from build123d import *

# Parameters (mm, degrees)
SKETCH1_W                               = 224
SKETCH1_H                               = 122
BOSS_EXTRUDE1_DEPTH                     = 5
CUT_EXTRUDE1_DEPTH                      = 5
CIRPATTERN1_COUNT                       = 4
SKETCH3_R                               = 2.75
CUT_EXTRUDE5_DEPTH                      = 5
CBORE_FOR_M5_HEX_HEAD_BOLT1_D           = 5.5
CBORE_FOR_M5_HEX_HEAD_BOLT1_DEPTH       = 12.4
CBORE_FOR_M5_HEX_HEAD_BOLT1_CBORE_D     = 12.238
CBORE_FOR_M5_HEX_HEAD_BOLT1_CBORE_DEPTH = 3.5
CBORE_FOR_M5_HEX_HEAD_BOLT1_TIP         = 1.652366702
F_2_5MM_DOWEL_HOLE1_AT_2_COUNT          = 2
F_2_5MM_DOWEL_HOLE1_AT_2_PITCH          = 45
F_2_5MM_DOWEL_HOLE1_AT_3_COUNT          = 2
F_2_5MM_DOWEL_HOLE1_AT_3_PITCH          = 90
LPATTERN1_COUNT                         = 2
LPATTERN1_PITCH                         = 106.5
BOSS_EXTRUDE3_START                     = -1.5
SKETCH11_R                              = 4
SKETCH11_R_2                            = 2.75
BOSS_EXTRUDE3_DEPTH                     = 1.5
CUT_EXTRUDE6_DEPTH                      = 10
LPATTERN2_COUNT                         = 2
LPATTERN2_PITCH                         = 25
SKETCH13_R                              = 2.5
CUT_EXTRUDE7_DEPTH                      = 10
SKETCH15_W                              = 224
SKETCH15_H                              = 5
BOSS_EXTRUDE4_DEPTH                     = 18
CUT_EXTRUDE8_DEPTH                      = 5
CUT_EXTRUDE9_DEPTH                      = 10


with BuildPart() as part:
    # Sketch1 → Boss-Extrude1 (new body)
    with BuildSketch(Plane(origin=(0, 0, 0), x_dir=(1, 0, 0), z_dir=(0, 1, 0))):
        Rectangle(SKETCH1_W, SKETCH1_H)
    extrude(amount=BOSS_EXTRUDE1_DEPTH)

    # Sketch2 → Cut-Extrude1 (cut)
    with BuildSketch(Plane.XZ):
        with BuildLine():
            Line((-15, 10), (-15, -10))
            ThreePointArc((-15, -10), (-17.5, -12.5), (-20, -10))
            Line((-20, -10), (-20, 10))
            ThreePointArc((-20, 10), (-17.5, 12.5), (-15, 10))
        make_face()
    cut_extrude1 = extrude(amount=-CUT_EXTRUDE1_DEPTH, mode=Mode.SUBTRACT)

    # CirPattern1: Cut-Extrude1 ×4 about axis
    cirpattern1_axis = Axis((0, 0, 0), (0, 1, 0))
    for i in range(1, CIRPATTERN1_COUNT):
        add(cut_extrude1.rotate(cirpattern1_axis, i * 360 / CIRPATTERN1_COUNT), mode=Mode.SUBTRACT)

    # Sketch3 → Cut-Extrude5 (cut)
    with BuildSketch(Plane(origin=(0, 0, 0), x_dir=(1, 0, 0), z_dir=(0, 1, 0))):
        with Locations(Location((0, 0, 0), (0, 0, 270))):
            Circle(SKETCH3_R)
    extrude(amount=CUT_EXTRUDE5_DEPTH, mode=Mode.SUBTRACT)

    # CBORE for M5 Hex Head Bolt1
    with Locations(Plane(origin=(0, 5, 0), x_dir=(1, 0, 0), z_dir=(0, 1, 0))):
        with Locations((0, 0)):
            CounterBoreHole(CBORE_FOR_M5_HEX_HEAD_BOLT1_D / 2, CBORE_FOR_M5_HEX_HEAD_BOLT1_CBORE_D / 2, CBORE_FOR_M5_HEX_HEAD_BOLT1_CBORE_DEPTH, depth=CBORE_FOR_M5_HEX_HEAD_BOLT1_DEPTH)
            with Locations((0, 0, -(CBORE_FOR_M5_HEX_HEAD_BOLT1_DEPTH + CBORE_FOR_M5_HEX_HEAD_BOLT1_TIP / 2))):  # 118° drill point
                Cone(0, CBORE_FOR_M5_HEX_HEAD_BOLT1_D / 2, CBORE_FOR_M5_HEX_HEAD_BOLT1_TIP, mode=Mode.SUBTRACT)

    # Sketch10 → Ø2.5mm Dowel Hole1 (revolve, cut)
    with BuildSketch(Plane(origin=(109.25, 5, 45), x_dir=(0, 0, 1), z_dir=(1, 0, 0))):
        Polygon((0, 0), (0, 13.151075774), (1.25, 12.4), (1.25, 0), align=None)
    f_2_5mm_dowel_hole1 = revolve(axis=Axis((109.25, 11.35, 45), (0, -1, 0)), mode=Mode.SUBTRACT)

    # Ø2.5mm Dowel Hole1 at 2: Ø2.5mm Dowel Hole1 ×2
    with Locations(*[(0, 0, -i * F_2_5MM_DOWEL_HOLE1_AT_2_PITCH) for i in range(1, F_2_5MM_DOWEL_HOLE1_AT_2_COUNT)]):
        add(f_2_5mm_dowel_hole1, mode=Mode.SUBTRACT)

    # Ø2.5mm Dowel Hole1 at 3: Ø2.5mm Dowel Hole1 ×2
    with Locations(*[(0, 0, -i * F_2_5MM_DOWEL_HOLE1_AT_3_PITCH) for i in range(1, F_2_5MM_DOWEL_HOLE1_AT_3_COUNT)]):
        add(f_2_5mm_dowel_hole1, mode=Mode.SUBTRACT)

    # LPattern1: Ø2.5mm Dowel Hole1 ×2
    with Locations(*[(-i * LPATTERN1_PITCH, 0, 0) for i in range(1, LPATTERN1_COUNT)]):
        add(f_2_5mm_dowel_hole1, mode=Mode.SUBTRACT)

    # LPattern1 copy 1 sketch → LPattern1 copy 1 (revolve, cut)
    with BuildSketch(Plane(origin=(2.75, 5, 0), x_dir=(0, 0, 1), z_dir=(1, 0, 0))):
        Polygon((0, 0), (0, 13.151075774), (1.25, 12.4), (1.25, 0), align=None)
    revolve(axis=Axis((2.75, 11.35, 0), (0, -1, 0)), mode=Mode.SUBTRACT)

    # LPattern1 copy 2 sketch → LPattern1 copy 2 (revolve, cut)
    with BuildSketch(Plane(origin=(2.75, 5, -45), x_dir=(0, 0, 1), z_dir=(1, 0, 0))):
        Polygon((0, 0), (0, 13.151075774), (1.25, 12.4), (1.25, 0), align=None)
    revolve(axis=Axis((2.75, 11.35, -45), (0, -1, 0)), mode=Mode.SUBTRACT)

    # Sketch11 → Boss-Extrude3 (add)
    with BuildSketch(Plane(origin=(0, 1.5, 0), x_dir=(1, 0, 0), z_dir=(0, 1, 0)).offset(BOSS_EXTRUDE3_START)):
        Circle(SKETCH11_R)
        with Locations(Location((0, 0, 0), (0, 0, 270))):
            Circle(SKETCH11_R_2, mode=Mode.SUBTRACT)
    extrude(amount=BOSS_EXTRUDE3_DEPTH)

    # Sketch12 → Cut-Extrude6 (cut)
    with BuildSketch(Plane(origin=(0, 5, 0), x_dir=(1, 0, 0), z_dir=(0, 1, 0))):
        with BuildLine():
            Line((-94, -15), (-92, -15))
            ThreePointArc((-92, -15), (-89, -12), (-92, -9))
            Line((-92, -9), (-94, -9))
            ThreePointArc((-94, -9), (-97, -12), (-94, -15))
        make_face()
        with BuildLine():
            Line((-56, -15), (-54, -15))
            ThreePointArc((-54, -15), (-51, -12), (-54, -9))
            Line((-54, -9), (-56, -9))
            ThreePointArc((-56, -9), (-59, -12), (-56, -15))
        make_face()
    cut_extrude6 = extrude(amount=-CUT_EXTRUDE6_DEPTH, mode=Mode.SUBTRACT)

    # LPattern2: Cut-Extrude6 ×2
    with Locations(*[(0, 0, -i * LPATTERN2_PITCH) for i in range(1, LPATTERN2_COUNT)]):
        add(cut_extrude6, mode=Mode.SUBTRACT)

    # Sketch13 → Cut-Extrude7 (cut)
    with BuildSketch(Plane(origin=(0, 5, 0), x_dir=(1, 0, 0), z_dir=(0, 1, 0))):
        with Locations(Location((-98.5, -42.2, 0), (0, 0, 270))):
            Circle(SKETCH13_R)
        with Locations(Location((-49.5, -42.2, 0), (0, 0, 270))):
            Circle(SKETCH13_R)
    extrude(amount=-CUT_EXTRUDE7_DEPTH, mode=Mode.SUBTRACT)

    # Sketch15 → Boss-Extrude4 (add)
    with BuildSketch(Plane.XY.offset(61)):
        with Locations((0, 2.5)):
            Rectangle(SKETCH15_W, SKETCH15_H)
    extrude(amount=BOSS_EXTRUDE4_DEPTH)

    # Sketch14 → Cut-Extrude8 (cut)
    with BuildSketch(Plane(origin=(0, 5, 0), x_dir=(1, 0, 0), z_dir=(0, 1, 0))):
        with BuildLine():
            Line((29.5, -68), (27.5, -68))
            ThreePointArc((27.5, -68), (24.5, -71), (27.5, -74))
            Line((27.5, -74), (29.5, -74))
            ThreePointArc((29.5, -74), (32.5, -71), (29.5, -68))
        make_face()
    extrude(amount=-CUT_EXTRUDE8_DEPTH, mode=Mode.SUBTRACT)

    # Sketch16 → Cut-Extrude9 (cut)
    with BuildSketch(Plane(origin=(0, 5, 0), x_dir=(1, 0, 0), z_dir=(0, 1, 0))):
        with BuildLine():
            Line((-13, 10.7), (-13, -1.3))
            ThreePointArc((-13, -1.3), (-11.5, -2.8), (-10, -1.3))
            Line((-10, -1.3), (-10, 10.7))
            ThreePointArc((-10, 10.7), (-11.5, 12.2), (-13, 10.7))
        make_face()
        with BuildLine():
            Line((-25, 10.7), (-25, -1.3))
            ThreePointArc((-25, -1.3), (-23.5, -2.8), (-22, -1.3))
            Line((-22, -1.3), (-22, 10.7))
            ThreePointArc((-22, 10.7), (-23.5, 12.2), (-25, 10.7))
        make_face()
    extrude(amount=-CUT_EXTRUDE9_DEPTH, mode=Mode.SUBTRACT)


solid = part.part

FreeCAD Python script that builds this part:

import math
import FreeCAD as App
import Part
import Sketcher
from FreeCAD import Vector
Q = App.Units.Quantity

doc = App.newDocument("Part")
params = doc.addObject("Spreadsheet::Sheet", "Params")
for row, (alias, value) in enumerate([
    ("sketch1_width", "224 mm"),
    ("sketch1_height", "122 mm"),
    ("pad1_length", "5 mm"),
    ("sketch2_radius", "2.5 mm"),
    ("sketch2_height", "20 mm"),
    ("pocket1_length", "5 mm"),
    ("sketch3_diameter", "5.5 mm"),
    ("pocket2_length", "5 mm"),
    ("sketch4_diameter", "5.5 mm"),
    ("hole_diameter", "5.5 mm"),
    ("hole_depth", "12.4 mm"),
    ("hole_cbore_diameter", "12.238 mm"),
    ("hole_cbore_depth", "3.5 mm"),
    ("sketch5_width", "12.4 mm"),
    ("sketch5_height", "1.25 mm"),
    ("groove_angle", "360 deg"),
    ("linearpattern_pitch", "45 mm"),
    ("linearpattern2_pitch", "90 mm"),
    ("linearpattern3_pitch", "106.5 mm"),
    ("sketch6_width", "12.4 mm"),
    ("sketch6_height", "1.25 mm"),
    ("groove2_angle", "360 deg"),
    ("sketch7_width", "12.4 mm"),
    ("sketch7_height", "1.25 mm"),
    ("groove3_angle", "360 deg"),
    ("sketch8_diameter", "8 mm"),
    ("sketch8_diameter2", "5.5 mm"),
    ("pad2_length", "1.5 mm"),
    ("sketch9_radius", "3 mm"),
    ("sketch9_width", "2 mm"),
    ("pocket3_length", "10 mm"),
    ("linearpattern4_pitch", "25 mm"),
    ("sketch10_diameter", "5 mm"),
    ("pocket4_length", "10 mm"),
    ("sketch11_width", "224 mm"),
    ("sketch11_height", "5 mm"),
    ("pad3_length", "18 mm"),
    ("sketch12_radius", "3 mm"),
    ("sketch12_width", "2 mm"),
    ("pocket5_length", "5 mm"),
    ("sketch13_radius", "1.5 mm"),
    ("sketch13_height", "12 mm"),
    ("pocket6_length", "10 mm"),
], start=1):
    params.set(f"A{row}", alias)
    params.set(f"B{row}", "=" + value)
    params.setAlias(f"B{row}", alias)

body = doc.addObject("PartDesign::Body", "Body")

sketch1 = body.newObject("Sketcher::SketchObject", "Sketch")
sketch1.AttachmentSupport = (doc.getObject("XZ_Plane"), [""])
sketch1.MapMode = "FlatFace"
sketch1.addGeometry(Part.LineSegment(Vector(-112, -61, 0), Vector(-112, 61, 0)), False)
sketch1.addGeometry(Part.LineSegment(Vector(-112, 61, 0), Vector(112, 61, 0)), False)
sketch1.addGeometry(Part.LineSegment(Vector(112, 61, 0), Vector(112, -61, 0)), False)
sketch1.addGeometry(Part.LineSegment(Vector(112, -61, 0), Vector(-112, -61, 0)), False)
sketch1.addConstraint(Sketcher.Constraint("Coincident", 0, 2, 1, 1))
sketch1.addConstraint(Sketcher.Constraint("Coincident", 1, 2, 2, 1))
sketch1.addConstraint(Sketcher.Constraint("Coincident", 2, 2, 3, 1))
sketch1.addConstraint(Sketcher.Constraint("Coincident", 3, 2, 0, 1))
sketch1.addConstraint(Sketcher.Constraint("Vertical", 0))
sketch1.addConstraint(Sketcher.Constraint("Horizontal", 1))
sketch1.addConstraint(Sketcher.Constraint("Vertical", 2))
sketch1.addConstraint(Sketcher.Constraint("Horizontal", 3))
sketch1.addConstraint(Sketcher.Constraint("Symmetric", 0, 2, 2, 2, -1, 1))
sketch1.addConstraint(Sketcher.Constraint("DistanceX", 1, 1, 1, 2, 224.0))
sketch1.addConstraint(Sketcher.Constraint("DistanceY", 0, 1, 0, 2, 122.0))
sketch1.setExpression("Constraints[9]", "Params.sketch1_width")
sketch1.setExpression("Constraints[10]", "Params.sketch1_height")
pad1 = body.newObject("PartDesign::Pad", "Pad")
pad1.Profile = sketch1
pad1.setExpression("Length", "Params.pad1_length")
pad1.Reversed = True

sketch2 = body.newObject("Sketcher::SketchObject", "Sketch001")
sketch2.AttachmentSupport = (doc.getObject("XZ_Plane"), [""])
sketch2.MapMode = "FlatFace"
sketch2.addGeometry(Part.LineSegment(Vector(-15, -10, 0), Vector(-15, 10, 0)), False)
sketch2.addGeometry(Part.ArcOfCircle(Part.Circle(Vector(-17.5, 10, 0), Vector(0, 0, 1), 2.5), math.radians(0), math.radians(180)), False)
sketch2.addGeometry(Part.LineSegment(Vector(-20, 10, 0), Vector(-20, -10, 0)), False)
sketch2.addGeometry(Part.ArcOfCircle(Part.Circle(Vector(-17.5, -10, 0), Vector(0, 0, 1), 2.5), math.radians(180), math.radians(360)), False)
sketch2.addConstraint(Sketcher.Constraint("Tangent", 0, 2, 1, 1))
sketch2.addConstraint(Sketcher.Constraint("Tangent", 1, 2, 2, 1))
sketch2.addConstraint(Sketcher.Constraint("Tangent", 2, 2, 3, 1))
sketch2.addConstraint(Sketcher.Constraint("Tangent", 3, 2, 0, 1))
sketch2.addConstraint(Sketcher.Constraint("Vertical", 0))
sketch2.addConstraint(Sketcher.Constraint("Vertical", 2))
sketch2.addConstraint(Sketcher.Constraint("Radius", 1, 2.5))
sketch2.addConstraint(Sketcher.Constraint("DistanceY", 0, 1, 0, 2, 20.0))
sketch2.addConstraint(Sketcher.Constraint("DistanceY", -1, 1, 1, 3, 10.0))
sketch2.addConstraint(Sketcher.Constraint("DistanceX", 0, 2, -1, 1, 15.0))
sketch2.setExpression("Constraints[6]", "Params.sketch2_radius")
sketch2.setExpression("Constraints[7]", "Params.sketch2_height")
pocket1 = body.newObject("PartDesign::Pocket", "Pocket")
pocket1.Profile = sketch2
pocket1.setExpression("Length", "Params.pocket1_length")
doc.recompute()

polarpattern = body.newObject("PartDesign::PolarPattern", "PolarPattern")
polarpattern.Originals = [pocket1]
polarpattern.Axis = (doc.getObject("Y_Axis"), [""])
polarpattern.Angle = 360
polarpattern.Occurrences = 4
body.Tip = polarpattern

sketch3 = body.newObject("Sketcher::SketchObject", "Sketch002")
sketch3.AttachmentSupport = (doc.getObject("XZ_Plane"), [""])
sketch3.MapMode = "FlatFace"
sketch3.addGeometry(Part.Circle(Vector(0, 0, 0), Vector(0, 0, 1), 2.75), False)
sketch3.addConstraint(Sketcher.Constraint("Coincident", 0, 3, -1, 1))
sketch3.addConstraint(Sketcher.Constraint("Diameter", 0, 5.5))
sketch3.setExpression("Constraints[1]", "Params.sketch3_diameter")
pocket2 = body.newObject("PartDesign::Pocket", "Pocket001")
pocket2.Profile = sketch3
pocket2.setExpression("Length", "Params.pocket2_length")

sketch4 = body.newObject("Sketcher::SketchObject", "Sketch003")
sketch4.AttachmentSupport = (doc.getObject("XZ_Plane"), [""])
sketch4.MapMode = "FlatFace"
sketch4.AttachmentOffset = App.Placement(Vector(0, 0, -5), App.Rotation())
sketch4.addGeometry(Part.Circle(Vector(0, 0, 0), Vector(0, 0, 1), 2.75), False)
sketch4.addConstraint(Sketcher.Constraint("Coincident", 0, 3, -1, 1))
sketch4.addConstraint(Sketcher.Constraint("Diameter", 0, 5.5))
sketch4.setExpression("Constraints[1]", "Params.sketch4_diameter")
doc.recompute()
hole = body.newObject("PartDesign::Hole", "Hole")
hole.Profile = sketch4
hole.ThreadType = "None"
hole.setExpression("Diameter", "Params.hole_diameter")
hole.DepthType = "Dimension"
hole.setExpression("Depth", "Params.hole_depth")
hole.DrillPoint = "Angled"
hole.DrillPointAngle = 118
hole.HoleCutType = "Counterbore"
hole.setExpression("HoleCutDiameter", "Params.hole_cbore_diameter")
hole.setExpression("HoleCutDepth", "Params.hole_cbore_depth")
hole.Reversed = True

sketch5 = body.newObject("Sketcher::SketchObject", "Sketch004")
sketch5.AttachmentSupport = (doc.getObject("YZ_Plane"), [""])
sketch5.MapMode = "FlatFace"
sketch5.AttachmentOffset = App.Placement(Vector(0, 0, 109.25), App.Rotation())
sketch5.addGeometry(Part.LineSegment(Vector(-8.151076, 45, 0), Vector(5, 45, 0)), False)
sketch5.addGeometry(Part.LineSegment(Vector(5, 45, 0), Vector(5, 46.25, 0)), False)
sketch5.addGeometry(Part.LineSegment(Vector(5, 46.25, 0), Vector(-7.4, 46.25, 0)), False)
sketch5.addGeometry(Part.LineSegment(Vector(-7.4, 46.25, 0), Vector(-8.151076, 45, 0)), False)
sketch5.addGeometry(Part.LineSegment(Vector(5, 45, 0), Vector(-8.151076, 45, 0)), True)
sketch5.addConstraint(Sketcher.Constraint("Coincident", 0, 2, 1, 1))
sketch5.addConstraint(Sketcher.Constraint("Coincident", 1, 2, 2, 1))
sketch5.addConstraint(Sketcher.Constraint("Coincident", 2, 2, 3, 1))
sketch5.addConstraint(Sketcher.Constraint("Coincident", 3, 2, 0, 1))
sketch5.addConstraint(Sketcher.Constraint("Horizontal", 0))
sketch5.addConstraint(Sketcher.Constraint("Vertical", 1))
sketch5.addConstraint(Sketcher.Constraint("Horizontal", 2))
sketch5.addConstraint(Sketcher.Constraint("Horizontal", 4))
sketch5.addConstraint(Sketcher.Constraint("Coincident", 4, 1, 0, 2))
sketch5.addConstraint(Sketcher.Constraint("Equal", 0, 4))
sketch5.addConstraint(Sketcher.Constraint("Angle", 3, Q("-121 deg")))
sketch5.addConstraint(Sketcher.Constraint("DistanceX", 2, 2, 2, 1, 12.4))
sketch5.addConstraint(Sketcher.Constraint("DistanceX", -1, 1, 0, 2, 5.0))
sketch5.addConstraint(Sketcher.Constraint("DistanceY", -1, 1, 0, 2, 45.0))
sketch5.addConstraint(Sketcher.Constraint("DistanceY", 1, 1, 1, 2, 1.25))
sketch5.setExpression("Constraints[11]", "Params.sketch5_width")
sketch5.setExpression("Constraints[14]", "Params.sketch5_height")
groove = body.newObject("PartDesign::Groove", "Groove")
groove.Profile = sketch5
groove.ReferenceAxis = (sketch5, ["Axis0"])
groove.setExpression("Angle", "Params.groove_angle")
doc.recompute()

linearpattern = body.newObject("PartDesign::LinearPattern", "LinearPattern")
linearpattern.Originals = [groove]
linearpattern.Direction = (doc.getObject("Z_Axis"), [""])
linearpattern.Mode = "offset"
linearpattern.setExpression("Offset", "Params.linearpattern_pitch")
linearpattern.Occurrences = 2
linearpattern.Reversed = True
body.Tip = linearpattern
doc.recompute()

linearpattern2 = body.newObject("PartDesign::LinearPattern", "LinearPattern001")
linearpattern2.Originals = [groove]
linearpattern2.Direction = (doc.getObject("Z_Axis"), [""])
linearpattern2.Mode = "offset"
linearpattern2.setExpression("Offset", "Params.linearpattern2_pitch")
linearpattern2.Occurrences = 2
linearpattern2.Reversed = True
body.Tip = linearpattern2
doc.recompute()

linearpattern3 = body.newObject("PartDesign::LinearPattern", "LinearPattern002")
linearpattern3.Originals = [groove]
linearpattern3.Direction = (doc.getObject("X_Axis"), [""])
linearpattern3.Mode = "offset"
linearpattern3.setExpression("Offset", "Params.linearpattern3_pitch")
linearpattern3.Occurrences = 2
linearpattern3.Reversed = True
body.Tip = linearpattern3

sketch6 = body.newObject("Sketcher::SketchObject", "Sketch005")
sketch6.AttachmentSupport = (doc.getObject("YZ_Plane"), [""])
sketch6.MapMode = "FlatFace"
sketch6.AttachmentOffset = App.Placement(Vector(0, 0, 2.75), App.Rotation())
sketch6.addGeometry(Part.LineSegment(Vector(-8.151076, 0, 0), Vector(5, 0, 0)), False)
sketch6.addGeometry(Part.LineSegment(Vector(5, 0, 0), Vector(5, 1.25, 0)), False)
sketch6.addGeometry(Part.LineSegment(Vector(5, 1.25, 0), Vector(-7.4, 1.25, 0)), False)
sketch6.addGeometry(Part.LineSegment(Vector(-7.4, 1.25, 0), Vector(-8.151076, 0, 0)), False)
sketch6.addConstraint(Sketcher.Constraint("Coincident", 0, 2, 1, 1))
sketch6.addConstraint(Sketcher.Constraint("Coincident", 1, 2, 2, 1))
sketch6.addConstraint(Sketcher.Constraint("Coincident", 2, 2, 3, 1))
sketch6.addConstraint(Sketcher.Constraint("Coincident", 3, 2, 0, 1))
sketch6.addConstraint(Sketcher.Constraint("Horizontal", 0))
sketch6.addConstraint(Sketcher.Constraint("Vertical", 1))
sketch6.addConstraint(Sketcher.Constraint("Horizontal", 2))
sketch6.addConstraint(Sketcher.Constraint("PointOnObject", 0, 2, -1))
sketch6.addConstraint(Sketcher.Constraint("Angle", 3, Q("-121 deg")))
sketch6.addConstraint(Sketcher.Constraint("DistanceX", 2, 2, 2, 1, 12.4))
sketch6.addConstraint(Sketcher.Constraint("DistanceX", -1, 1, 0, 2, 5.0))
sketch6.addConstraint(Sketcher.Constraint("DistanceY", 1, 1, 1, 2, 1.25))
sketch6.setExpression("Constraints[9]", "Params.sketch6_width")
sketch6.setExpression("Constraints[11]", "Params.sketch6_height")
groove2 = body.newObject("PartDesign::Groove", "Groove001")
groove2.Profile = sketch6
groove2.ReferenceAxis = (sketch6, ["H_Axis"])
groove2.setExpression("Angle", "Params.groove2_angle")

sketch7 = body.newObject("Sketcher::SketchObject", "Sketch006")
sketch7.AttachmentSupport = (doc.getObject("YZ_Plane"), [""])
sketch7.MapMode = "FlatFace"
sketch7.AttachmentOffset = App.Placement(Vector(0, 0, 2.75), App.Rotation())
sketch7.addGeometry(Part.LineSegment(Vector(-8.151076, -45, 0), Vector(5, -45, 0)), False)
sketch7.addGeometry(Part.LineSegment(Vector(5, -45, 0), Vector(5, -43.75, 0)), False)
sketch7.addGeometry(Part.LineSegment(Vector(5, -43.75, 0), Vector(-7.4, -43.75, 0)), False)
sketch7.addGeometry(Part.LineSegment(Vector(-7.4, -43.75, 0), Vector(-8.151076, -45, 0)), False)
sketch7.addGeometry(Part.LineSegment(Vector(5, -45, 0), Vector(-8.151076, -45, 0)), True)
sketch7.addConstraint(Sketcher.Constraint("Coincident", 0, 2, 1, 1))
sketch7.addConstraint(Sketcher.Constraint("Coincident", 1, 2, 2, 1))
sketch7.addConstraint(Sketcher.Constraint("Coincident", 2, 2, 3, 1))
sketch7.addConstraint(Sketcher.Constraint("Coincident", 3, 2, 0, 1))
sketch7.addConstraint(Sketcher.Constraint("Horizontal", 0))
sketch7.addConstraint(Sketcher.Constraint("Vertical", 1))
sketch7.addConstraint(Sketcher.Constraint("Horizontal", 2))
sketch7.addConstraint(Sketcher.Constraint("Horizontal", 4))
sketch7.addConstraint(Sketcher.Constraint("Coincident", 4, 1, 0, 2))
sketch7.addConstraint(Sketcher.Constraint("Equal", 0, 4))
sketch7.addConstraint(Sketcher.Constraint("Angle", 3, Q("-121 deg")))
sketch7.addConstraint(Sketcher.Constraint("DistanceX", 2, 2, 2, 1, 12.4))
sketch7.addConstraint(Sketcher.Constraint("DistanceX", -1, 1, 0, 2, 5.0))
sketch7.addConstraint(Sketcher.Constraint("DistanceY", 0, 2, -1, 1, 45.0))
sketch7.addConstraint(Sketcher.Constraint("DistanceY", 1, 1, 1, 2, 1.25))
sketch7.setExpression("Constraints[11]", "Params.sketch7_width")
sketch7.setExpression("Constraints[14]", "Params.sketch7_height")
groove3 = body.newObject("PartDesign::Groove", "Groove002")
groove3.Profile = sketch7
groove3.ReferenceAxis = (sketch7, ["Axis0"])
groove3.setExpression("Angle", "Params.groove3_angle")

sketch8 = body.newObject("Sketcher::SketchObject", "Sketch007")
sketch8.AttachmentSupport = (doc.getObject("XZ_Plane"), [""])
sketch8.MapMode = "FlatFace"
sketch8.addGeometry(Part.Circle(Vector(0, 0, 0), Vector(0, 0, 1), 4), False)
sketch8.addGeometry(Part.Circle(Vector(0, 0, 0), Vector(0, 0, 1), 2.75), False)
sketch8.addConstraint(Sketcher.Constraint("Coincident", 0, 3, -1, 1))
sketch8.addConstraint(Sketcher.Constraint("Coincident", 1, 3, -1, 1))
sketch8.addConstraint(Sketcher.Constraint("Diameter", 0, 8.0))
sketch8.addConstraint(Sketcher.Constraint("Diameter", 1, 5.5))
sketch8.setExpression("Constraints[2]", "Params.sketch8_diameter")
sketch8.setExpression("Constraints[3]", "Params.sketch8_diameter2")
pad2 = body.newObject("PartDesign::Pad", "Pad001")
pad2.Profile = sketch8
pad2.setExpression("Length", "Params.pad2_length")
pad2.Reversed = True

sketch9 = body.newObject("Sketcher::SketchObject", "Sketch008")
sketch9.AttachmentSupport = (doc.getObject("XZ_Plane"), [""])
sketch9.MapMode = "FlatFace"
sketch9.AttachmentOffset = App.Placement(Vector(0, 0, -5), App.Rotation())
sketch9.addGeometry(Part.LineSegment(Vector(-94, 15, 0), Vector(-92, 15, 0)), False)
sketch9.addGeometry(Part.ArcOfCircle(Part.Circle(Vector(-92, 12, 0), Vector(0, 0, 1), 3), math.radians(-90), math.radians(90)), False)
sketch9.addGeometry(Part.LineSegment(Vector(-92, 9, 0), Vector(-94, 9, 0)), False)
sketch9.addGeometry(Part.ArcOfCircle(Part.Circle(Vector(-94, 12, 0), Vector(0, 0, 1), 3), math.radians(90), math.radians(270)), False)
sketch9.addGeometry(Part.LineSegment(Vector(-56, 15, 0), Vector(-54, 15, 0)), False)
sketch9.addGeometry(Part.ArcOfCircle(Part.Circle(Vector(-54, 12, 0), Vector(0, 0, 1), 3), math.radians(-90), math.radians(90)), False)
sketch9.addGeometry(Part.LineSegment(Vector(-54, 9, 0), Vector(-56, 9, 0)), False)
sketch9.addGeometry(Part.ArcOfCircle(Part.Circle(Vector(-56, 12, 0), Vector(0, 0, 1), 3), math.radians(90), math.radians(270)), False)
sketch9.addConstraint(Sketcher.Constraint("Tangent", 0, 2, 1, 2))
sketch9.addConstraint(Sketcher.Constraint("Tangent", 1, 1, 2, 1))
sketch9.addConstraint(Sketcher.Constraint("Tangent", 2, 2, 3, 2))
sketch9.addConstraint(Sketcher.Constraint("Tangent", 3, 1, 0, 1))
sketch9.addConstraint(Sketcher.Constraint("Tangent", 4, 2, 5, 2))
sketch9.addConstraint(Sketcher.Constraint("Tangent", 5, 1, 6, 1))
sketch9.addConstraint(Sketcher.Constraint("Tangent", 6, 2, 7, 2))
sketch9.addConstraint(Sketcher.Constraint("Tangent", 7, 1, 4, 1))
sketch9.addConstraint(Sketcher.Constraint("Horizontal", 0))
sketch9.addConstraint(Sketcher.Constraint("Horizontal", 2))
sketch9.addConstraint(Sketcher.Constraint("Horizontal", 4))
sketch9.addConstraint(Sketcher.Constraint("Horizontal", 6))
sketch9.addConstraint(Sketcher.Constraint("Equal", 3, 5))
sketch9.addConstraint(Sketcher.Constraint("Horizontal", 3, 3, 5, 3))
sketch9.addConstraint(Sketcher.Constraint("Equal", 2, 4))
sketch9.addConstraint(Sketcher.Constraint("Radius", 1, 3.0))
sketch9.addConstraint(Sketcher.Constraint("DistanceX", 0, 1, 0, 2, 2.0))
sketch9.addConstraint(Sketcher.Constraint("DistanceX", 1, 3, -1, 1, 92.0))
sketch9.addConstraint(Sketcher.Constraint("DistanceY", -1, 1, 1, 3, 12.0))
sketch9.addConstraint(Sketcher.Constraint("DistanceX", 5, 3, -1, 1, 54.0))
sketch9.setExpression("Constraints[15]", "Params.sketch9_radius")
sketch9.setExpression("Constraints[16]", "Params.sketch9_width")
pocket3 = body.newObject("PartDesign::Pocket", "Pocket002")
pocket3.Profile = sketch9
pocket3.setExpression("Length", "Params.pocket3_length")
pocket3.Reversed = True
doc.recompute()

linearpattern4 = body.newObject("PartDesign::LinearPattern", "LinearPattern003")
linearpattern4.Originals = [pocket3]
linearpattern4.Direction = (doc.getObject("Z_Axis"), [""])
linearpattern4.Mode = "offset"
linearpattern4.setExpression("Offset", "Params.linearpattern4_pitch")
linearpattern4.Occurrences = 2
linearpattern4.Reversed = True
body.Tip = linearpattern4

sketch10 = body.newObject("Sketcher::SketchObject", "Sketch009")
sketch10.AttachmentSupport = (doc.getObject("XZ_Plane"), [""])
sketch10.MapMode = "FlatFace"
sketch10.AttachmentOffset = App.Placement(Vector(0, 0, -5), App.Rotation())
sketch10.addGeometry(Part.Circle(Vector(-98.5, 42.2, 0), Vector(0, 0, 1), 2.5), False)
sketch10.addGeometry(Part.Circle(Vector(-49.5, 42.2, 0), Vector(0, 0, 1), 2.5), False)
sketch10.addConstraint(Sketcher.Constraint("Equal", 0, 1))
sketch10.addConstraint(Sketcher.Constraint("Horizontal", 0, 3, 1, 3))
sketch10.addConstraint(Sketcher.Constraint("Diameter", 0, 5.0))
sketch10.addConstraint(Sketcher.Constraint("DistanceX", 0, 3, 1, 3, 49.0))
sketch10.addConstraint(Sketcher.Constraint("DistanceX", 0, 3, -1, 1, 98.5))
sketch10.addConstraint(Sketcher.Constraint("DistanceY", -1, 1, 0, 3, 42.2))
sketch10.setExpression("Constraints[2]", "Params.sketch10_diameter")
pocket4 = body.newObject("PartDesign::Pocket", "Pocket003")
pocket4.Profile = sketch10
pocket4.setExpression("Length", "Params.pocket4_length")
pocket4.Reversed = True

sketch11 = body.newObject("Sketcher::SketchObject", "Sketch010")
sketch11.AttachmentSupport = (doc.getObject("XY_Plane"), [""])
sketch11.MapMode = "FlatFace"
sketch11.AttachmentOffset = App.Placement(Vector(0, 0, 61), App.Rotation())
sketch11.addGeometry(Part.LineSegment(Vector(-112, 5, 0), Vector(-112, 0, 0)), False)
sketch11.addGeometry(Part.LineSegment(Vector(-112, 0, 0), Vector(112, 0, 0)), False)
sketch11.addGeometry(Part.LineSegment(Vector(112, 0, 0), Vector(112, 5, 0)), False)
sketch11.addGeometry(Part.LineSegment(Vector(112, 5, 0), Vector(-112, 5, 0)), False)
sketch11.addConstraint(Sketcher.Constraint("Coincident", 0, 2, 1, 1))
sketch11.addConstraint(Sketcher.Constraint("Coincident", 1, 2, 2, 1))
sketch11.addConstraint(Sketcher.Constraint("Coincident", 2, 2, 3, 1))
sketch11.addConstraint(Sketcher.Constraint("Coincident", 3, 2, 0, 1))
sketch11.addConstraint(Sketcher.Constraint("Vertical", 0))
sketch11.addConstraint(Sketcher.Constraint("Horizontal", 1))
sketch11.addConstraint(Sketcher.Constraint("Vertical", 2))
sketch11.addConstraint(Sketcher.Constraint("Horizontal", 3))
sketch11.addConstraint(Sketcher.Constraint("Symmetric", 0, 2, 1, 2, -1, 1))
sketch11.addConstraint(Sketcher.Constraint("DistanceX", 1, 1, 1, 2, 224.0))
sketch11.addConstraint(Sketcher.Constraint("DistanceY", 0, 2, 0, 1, 5.0))
sketch11.setExpression("Constraints[9]", "Params.sketch11_width")
sketch11.setExpression("Constraints[10]", "Params.sketch11_height")
pad3 = body.newObject("PartDesign::Pad", "Pad002")
pad3.Profile = sketch11
pad3.setExpression("Length", "Params.pad3_length")

sketch12 = body.newObject("Sketcher::SketchObject", "Sketch011")
sketch12.AttachmentSupport = (doc.getObject("XZ_Plane"), [""])
sketch12.MapMode = "FlatFace"
sketch12.AttachmentOffset = App.Placement(Vector(0, 0, -5), App.Rotation())
sketch12.addGeometry(Part.LineSegment(Vector(29.5, 68, 0), Vector(27.5, 68, 0)), False)
sketch12.addGeometry(Part.ArcOfCircle(Part.Circle(Vector(27.5, 71, 0), Vector(0, 0, 1), 3), math.radians(90), math.radians(270)), False)
sketch12.addGeometry(Part.LineSegment(Vector(27.5, 74, 0), Vector(29.5, 74, 0)), False)
sketch12.addGeometry(Part.ArcOfCircle(Part.Circle(Vector(29.5, 71, 0), Vector(0, 0, 1), 3), math.radians(-90), math.radians(90)), False)
sketch12.addConstraint(Sketcher.Constraint("Tangent", 0, 2, 1, 2))
sketch12.addConstraint(Sketcher.Constraint("Tangent", 1, 1, 2, 1))
sketch12.addConstraint(Sketcher.Constraint("Tangent", 2, 2, 3, 2))
sketch12.addConstraint(Sketcher.Constraint("Tangent", 3, 1, 0, 1))
sketch12.addConstraint(Sketcher.Constraint("Horizontal", 0))
sketch12.addConstraint(Sketcher.Constraint("Horizontal", 2))
sketch12.addConstraint(Sketcher.Constraint("Radius", 1, 3.0))
sketch12.addConstraint(Sketcher.Constraint("DistanceX", 0, 2, 0, 1, 2.0))
sketch12.addConstraint(Sketcher.Constraint("DistanceY", -1, 1, 1, 3, 71.0))
sketch12.addConstraint(Sketcher.Constraint("DistanceX", -1, 1, 1, 3, 27.5))
sketch12.setExpression("Constraints[6]", "Params.sketch12_radius")
sketch12.setExpression("Constraints[7]", "Params.sketch12_width")
pocket5 = body.newObject("PartDesign::Pocket", "Pocket004")
pocket5.Profile = sketch12
pocket5.setExpression("Length", "Params.pocket5_length")
pocket5.Reversed = True

sketch13 = body.newObject("Sketcher::SketchObject", "Sketch012")
sketch13.AttachmentSupport = (doc.getObject("XZ_Plane"), [""])
sketch13.MapMode = "FlatFace"
sketch13.AttachmentOffset = App.Placement(Vector(0, 0, -5), App.Rotation())
sketch13.addGeometry(Part.LineSegment(Vector(-13, -10.7, 0), Vector(-13, 1.3, 0)), False)
sketch13.addGeometry(Part.ArcOfCircle(Part.Circle(Vector(-11.5, 1.3, 0), Vector(0, 0, 1), 1.5), math.radians(0), math.radians(180)), False)
sketch13.addGeometry(Part.LineSegment(Vector(-10, 1.3, 0), Vector(-10, -10.7, 0)), False)
sketch13.addGeometry(Part.ArcOfCircle(Part.Circle(Vector(-11.5, -10.7, 0), Vector(0, 0, 1), 1.5), math.radians(180), math.radians(360)), False)
sketch13.addGeometry(Part.LineSegment(Vector(-25, -10.7, 0), Vector(-25, 1.3, 0)), False)
sketch13.addGeometry(Part.ArcOfCircle(Part.Circle(Vector(-23.5, 1.3, 0), Vector(0, 0, 1), 1.5), math.radians(0), math.radians(180)), False)
sketch13.addGeometry(Part.LineSegment(Vector(-22, 1.3, 0), Vector(-22, -10.7, 0)), False)
sketch13.addGeometry(Part.ArcOfCircle(Part.Circle(Vector(-23.5, -10.7, 0), Vector(0, 0, 1), 1.5), math.radians(180), math.radians(360)), False)
sketch13.addConstraint(Sketcher.Constraint("Tangent", 0, 2, 1, 2))
sketch13.addConstraint(Sketcher.Constraint("Tangent", 1, 1, 2, 1))
sketch13.addConstraint(Sketcher.Constraint("Tangent", 2, 2, 3, 2))
sketch13.addConstraint(Sketcher.Constraint("Tangent", 3, 1, 0, 1))
sketch13.addConstraint(Sketcher.Constraint("Tangent", 4, 2, 5, 2))
sketch13.addConstraint(Sketcher.Constraint("Tangent", 5, 1, 6, 1))
sketch13.addConstraint(Sketcher.Constraint("Tangent", 6, 2, 7, 2))
sketch13.addConstraint(Sketcher.Constraint("Tangent", 7, 1, 4, 1))
sketch13.addConstraint(Sketcher.Constraint("Vertical", 0))
sketch13.addConstraint(Sketcher.Constraint("Vertical", 2))
sketch13.addConstraint(Sketcher.Constraint("Vertical", 4))
sketch13.addConstraint(Sketcher.Constraint("Vertical", 6))
sketch13.addConstraint(Sketcher.Constraint("Equal", 3, 5))
sketch13.addConstraint(Sketcher.Constraint("Horizontal", 1, 3, 5, 3))
sketch13.addConstraint(Sketcher.Constraint("Horizontal", 3, 3, 7, 3))
sketch13.addConstraint(Sketcher.Constraint("Radius", 1, 1.5))
sketch13.addConstraint(Sketcher.Constraint("DistanceY", 0, 1, 0, 2, 12.0))
sketch13.addConstraint(Sketcher.Constraint("DistanceX", 0, 2, -1, 1, 13.0))
sketch13.addConstraint(Sketcher.Constraint("DistanceX", 4, 2, -1, 1, 25.0))
sketch13.addConstraint(Sketcher.Constraint("DistanceY", -1, 1, 1, 3, 1.3))
sketch13.setExpression("Constraints[15]", "Params.sketch13_radius")
sketch13.setExpression("Constraints[16]", "Params.sketch13_height")
pocket6 = body.newObject("PartDesign::Pocket", "Pocket005")
pocket6.Profile = sketch13
pocket6.setExpression("Length", "Params.pocket6_length")
pocket6.Reversed = True

doc.recompute()
